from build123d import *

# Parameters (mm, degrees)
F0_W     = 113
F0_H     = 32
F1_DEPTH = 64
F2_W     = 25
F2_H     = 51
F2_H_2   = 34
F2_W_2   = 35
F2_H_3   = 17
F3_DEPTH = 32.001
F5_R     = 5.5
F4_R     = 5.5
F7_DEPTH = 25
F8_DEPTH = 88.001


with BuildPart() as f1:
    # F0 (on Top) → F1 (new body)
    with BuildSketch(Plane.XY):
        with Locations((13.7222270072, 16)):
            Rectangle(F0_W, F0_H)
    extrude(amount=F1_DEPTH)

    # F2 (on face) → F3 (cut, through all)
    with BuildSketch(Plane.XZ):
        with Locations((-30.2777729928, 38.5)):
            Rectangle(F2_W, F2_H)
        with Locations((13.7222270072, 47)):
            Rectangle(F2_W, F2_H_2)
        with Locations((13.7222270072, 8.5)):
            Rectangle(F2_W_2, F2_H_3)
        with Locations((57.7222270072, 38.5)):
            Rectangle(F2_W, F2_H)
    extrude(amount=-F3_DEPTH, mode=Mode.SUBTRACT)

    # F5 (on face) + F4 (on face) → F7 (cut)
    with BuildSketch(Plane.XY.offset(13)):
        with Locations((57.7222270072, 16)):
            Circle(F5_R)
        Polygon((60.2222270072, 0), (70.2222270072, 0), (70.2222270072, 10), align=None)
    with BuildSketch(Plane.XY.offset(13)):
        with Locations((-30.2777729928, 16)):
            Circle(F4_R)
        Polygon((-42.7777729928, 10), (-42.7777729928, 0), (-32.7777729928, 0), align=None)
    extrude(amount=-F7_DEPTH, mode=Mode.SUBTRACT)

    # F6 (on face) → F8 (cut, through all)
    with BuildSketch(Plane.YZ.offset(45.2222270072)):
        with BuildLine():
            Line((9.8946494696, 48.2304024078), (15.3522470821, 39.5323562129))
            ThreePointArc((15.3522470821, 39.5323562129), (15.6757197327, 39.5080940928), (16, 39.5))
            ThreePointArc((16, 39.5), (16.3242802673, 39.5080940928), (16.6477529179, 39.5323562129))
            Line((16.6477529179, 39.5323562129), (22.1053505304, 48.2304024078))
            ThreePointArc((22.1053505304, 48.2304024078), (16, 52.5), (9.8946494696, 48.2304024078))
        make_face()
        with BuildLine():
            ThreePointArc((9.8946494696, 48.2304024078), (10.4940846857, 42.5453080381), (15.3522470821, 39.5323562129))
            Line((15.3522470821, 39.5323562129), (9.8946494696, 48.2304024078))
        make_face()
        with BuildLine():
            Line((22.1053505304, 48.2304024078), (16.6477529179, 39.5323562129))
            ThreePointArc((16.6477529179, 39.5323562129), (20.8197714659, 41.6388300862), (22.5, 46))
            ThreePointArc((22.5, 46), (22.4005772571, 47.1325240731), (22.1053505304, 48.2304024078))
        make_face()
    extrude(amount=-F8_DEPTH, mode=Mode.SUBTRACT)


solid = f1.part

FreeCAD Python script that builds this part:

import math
import FreeCAD as App
import Part
import Sketcher
from FreeCAD import Vector
Q = App.Units.Quantity

doc = App.newDocument("Part")
body = doc.addObject("PartDesign::Body", "Body")

sketch1 = body.newObject("Sketcher::SketchObject", "Sketch")
sketch1.AttachmentSupport = (doc.getObject("XY_Plane"), [""])
sketch1.MapMode = "FlatFace"
sketch1.addGeometry([
    Part.LineSegment(Vector(-43, 32, 0), Vector(-43, 0, 0)),
    Part.LineSegment(Vector(-43, 0, 0), Vector(70, 0, 0)),
    Part.LineSegment(Vector(70, 0, 0), Vector(70, 32, 0)),
    Part.LineSegment(Vector(70, 32, 0), Vector(-43, 32, 0)),
], False)
sketch1.addConstraint([
    Sketcher.Constraint("Coincident", 0, 2, 1, 1),
    Sketcher.Constraint("Coincident", 1, 2, 2, 1),
    Sketcher.Constraint("Coincident", 2, 2, 3, 1),
    Sketcher.Constraint("Coincident", 3, 2, 0, 1),
    Sketcher.Constraint("Vertical", 0),
    Sketcher.Constraint("Horizontal", 1),
    Sketcher.Constraint("Vertical", 2),
    Sketcher.Constraint("Horizontal", 3),
    Sketcher.Constraint("PointOnObject", 0, 2, -1),
    Sketcher.Constraint("DistanceX", 1, 1, 1, 2, Q("113 mm")),
    Sketcher.Constraint("DistanceY", 0, 2, 0, 1, Q("32 mm")),
    Sketcher.Constraint("DistanceX", 0, 2, -1, 1, Q("42.777773 mm")),
])
pad1 = body.newObject("PartDesign::Pad", "Pad")
pad1.Profile = sketch1
pad1.Length = 64

sketch2 = body.newObject("Sketcher::SketchObject", "Sketch001")
sketch2.AttachmentSupport = (doc.getObject("XZ_Plane"), [""])
sketch2.MapMode = "FlatFace"
sketch2.addGeometry([
    Part.LineSegment(Vector(-43, 64, 0), Vector(-43, 13, 0)),
    Part.LineSegment(Vector(-43, 13, 0), Vector(-18, 13, 0)),
    Part.LineSegment(Vector(-18, 13, 0), Vector(-18, 64, 0)),
    Part.LineSegment(Vector(-18, 64, 0), Vector(-43, 64, 0)),
    Part.LineSegment(Vector(1, 64, 0), Vector(1, 30, 0)),
    Part.LineSegment(Vector(1, 30, 0), Vector(26, 30, 0)),
    Part.LineSegment(Vector(26, 30, 0), Vector(26, 64, 0)),
    Part.LineSegment(Vector(26, 64, 0), Vector(1, 64, 0)),
    Part.LineSegment(Vector(-4, 17, 0), Vector(-4, 0, 0)),
    Part.LineSegment(Vector(-4, 0, 0), Vector(31, 0, 0)),
    Part.LineSegment(Vector(31, 0, 0), Vector(31, 17, 0)),
    Part.LineSegment(Vector(31, 17, 0), Vector(-4, 17, 0)),
    Part.LineSegment(Vector(45, 64, 0), Vector(45, 13, 0)),
    Part.LineSegment(Vector(45, 13, 0), Vector(70, 13, 0)),
    Part.LineSegment(Vector(70, 13, 0), Vector(70, 64, 0)),
    Part.LineSegment(Vector(70, 64, 0), Vector(45, 64, 0)),
], False)
sketch2.addConstraint([
    Sketcher.Constraint("Coincident", 0, 2, 1, 1),
    Sketcher.Constraint("Coincident", 1, 2, 2, 1),
    Sketcher.Constraint("Coincident", 2, 2, 3, 1),
    Sketcher.Constraint("Coincident", 3, 2, 0, 1),
    Sketcher.Constraint("Coincident", 4, 2, 5, 1),
    Sketcher.Constraint("Coincident", 5, 2, 6, 1),
    Sketcher.Constraint("Coincident", 6, 2, 7, 1),
    Sketcher.Constraint("Coincident", 7, 2, 4, 1),
    Sketcher.Constraint("Coincident", 8, 2, 9, 1),
    Sketcher.Constraint("Coincident", 9, 2, 10, 1),
    Sketcher.Constraint("Coincident", 10, 2, 11, 1),
    Sketcher.Constraint("Coincident", 11, 2, 8, 1),
    Sketcher.Constraint("Coincident", 12, 2, 13, 1),
    Sketcher.Constraint("Coincident", 13, 2, 14, 1),
    Sketcher.Constraint("Coincident", 14, 2, 15, 1),
    Sketcher.Constraint("Coincident", 15, 2, 12, 1),
    Sketcher.Constraint("Vertical", 0),
    Sketcher.Constraint("Horizontal", 1),
    Sketcher.Constraint("Vertical", 2),
    Sketcher.Constraint("Horizontal", 3),
    Sketcher.Constraint("Vertical", 4),
    Sketcher.Constraint("Horizontal", 5),
    Sketcher.Constraint("Vertical", 6),
    Sketcher.Constraint("Horizontal", 7),
    Sketcher.Constraint("Vertical", 8),
    Sketcher.Constraint("Horizontal", 9),
    Sketcher.Constraint("Vertical", 10),
    Sketcher.Constraint("Horizontal", 11),
    Sketcher.Constraint("Vertical", 12),
    Sketcher.Constraint("Horizontal", 13),
    Sketcher.Constraint("Vertical", 14),
    Sketcher.Constraint("Horizontal", 15),
    Sketcher.Constraint("PointOnObject", 8, 2, -1),
    Sketcher.Constraint("Horizontal", 3, 2, 6, 2),
    Sketcher.Constraint("Horizontal", 1, 2, 12, 2),
    Sketcher.Constraint("Horizontal", 7, 2, 14, 2),
    Sketcher.Constraint("Equal", 3, 5),
    Sketcher.Constraint("Equal", 7, 13),
    Sketcher.Constraint("DistanceX", 1, 1, 1, 2, Q("25 mm")),
    Sketcher.Constraint("DistanceX", 9, 1, 9, 2, Q("35 mm")),
    Sketcher.Constraint("DistanceY", 0, 2, 0, 1, Q("51 mm")),
    Sketcher.Constraint("DistanceY", 4, 2, 4, 1, Q("34 mm")),
    Sketcher.Constraint("DistanceY", 8, 2, 8, 1, Q("17 mm")),
    Sketcher.Constraint("DistanceY", -1, 1, 0, 2, Q("13 mm")),
    Sketcher.Constraint("DistanceX", 1, 2, 4, 2, Q("19 mm")),
    Sketcher.Constraint("DistanceX", 1, 2, 8, 2, Q("14 mm")),
    Sketcher.Constraint("DistanceX", 10, 2, 12, 2, Q("14 mm")),
    Sketcher.Constraint("DistanceX", 0, 2, -1, 1, Q("42.777773 mm")),
])
pocket1 = body.newObject("PartDesign::Pocket", "Pocket")
pocket1.Profile = sketch2
pocket1.Type = "ThroughAll"

sketch3 = body.newObject("Sketcher::SketchObject", "Sketch002")
sketch3.AttachmentSupport = (doc.getObject("XY_Plane"), [""])
sketch3.MapMode = "FlatFace"
sketch3.AttachmentOffset = App.Placement(Vector(0, 0, 13), App.Rotation())
sketch3.addGeometry([
    Part.Circle(Vector(58, 16, 0), Vector(0, 0, 1), 6),
    Part.LineSegment(Vector(60, 0, 0), Vector(70, 0, 0)),
    Part.LineSegment(Vector(70, 0, 0), Vector(70, 10, 0)),
    Part.LineSegment(Vector(70, 10, 0), Vector(60, 0, 0)),
    Part.Circle(Vector(-30, 16, 0), Vector(0, 0, 1), 6),
    Part.LineSegment(Vector(-43, 10, 0), Vector(-43, 0, 0)),
    Part.LineSegment(Vector(-43, 0, 0), Vector(-33, 0, 0)),
    Part.LineSegment(Vector(-33, 0, 0), Vector(-43, 10, 0)),
], False)
sketch3.addConstraint([
    Sketcher.Constraint("Coincident", 1, 2, 2, 1),
    Sketcher.Constraint("Coincident", 2, 2, 3, 1),
    Sketcher.Constraint("Coincident", 3, 2, 1, 1),
    Sketcher.Constraint("Coincident", 5, 2, 6, 1),
    Sketcher.Constraint("Coincident", 6, 2, 7, 1),
    Sketcher.Constraint("Coincident", 7, 2, 5, 1),
    Sketcher.Constraint("Horizontal", 1),
    Sketcher.Constraint("Vertical", 2),
    Sketcher.Constraint("Vertical", 5),
    Sketcher.Constraint("Horizontal", 6),
    Sketcher.Constraint("Equal", 0, 4),
    Sketcher.Constraint("PointOnObject", 1, 2, -1),
    Sketcher.Constraint("PointOnObject", 5, 2, -1),
    Sketcher.Constraint("Perpendicular", 3, 7),
    Sketcher.Constraint("Horizontal", 0, 3, 4, 3),
    Sketcher.Constraint("Horizontal", 2, 2, 7, 2),
    Sketcher.Constraint("Equal", 1, 6),
    Sketcher.Constraint("Diameter", 0, Q("11 mm")),
    Sketcher.Constraint("DistanceX", 1, 1, 1, 2, Q("10 mm")),
    Sketcher.Constraint("DistanceY", -1, 1, 0, 3, Q("16 mm")),
    Sketcher.Constraint("DistanceX", 4, 3, 0, 3, Q("88 mm")),
    Sketcher.Constraint("DistanceX", 5, 2, 3, 2, Q("103 mm")),
    Sketcher.Constraint("DistanceX", 0, 3, 1, 2, Q("12.5 mm")),
    Sketcher.Constraint("DistanceX", -1, 1, 0, 3, Q("57.722227 mm")),
])
pocket2 = body.newObject("PartDesign::Pocket", "Pocket001")
pocket2.Profile = sketch3
pocket2.Length = 25

sketch4 = body.newObject("Sketcher::SketchObject", "Sketch003")
sketch4.AttachmentSupport = (doc.getObject("YZ_Plane"), [""])
sketch4.MapMode = "FlatFace"
sketch4.AttachmentOffset = App.Placement(Vector(0, 0, 45.222227), App.Rotation())
sketch4.addGeometry([
    Part.ArcOfCircle(Part.Circle(Vector(16, 46, 0), Vector(0, 0, 1), 6.5), math.radians(-95.72), math.radians(-90)),
    Part.ArcOfCircle(Part.Circle(Vector(16, 46, 0), Vector(0, 0, 1), 6.5), math.radians(-90), math.radians(-84.28)),
    Part.ArcOfCircle(Part.Circle(Vector(16, 46, 0), Vector(0, 0, 1), 6.5), math.radians(-84), math.radians(0)),
    Part.ArcOfCircle(Part.Circle(Vector(16, 46, 0), Vector(0, 0, 1), 6.5), math.radians(0), math.radians(20)),
    Part.ArcOfCircle(Part.Circle(Vector(16, 46, 0), Vector(0, 0, 1), 6.5), math.radians(20), math.radians(160)),
    Part.ArcOfCircle(Part.Circle(Vector(16, 46, 0), Vector(0, 0, 1), 6.5), math.radians(160), math.radians(264)),
], False)
sketch4.addConstraint([
    Sketcher.Constraint("Tangent", 0, 2, 1, 1),
    Sketcher.Constraint("Tangent", 1, 2, 2, 1),
    Sketcher.Constraint("Tangent", 2, 2, 3, 1),
    Sketcher.Constraint("Tangent", 3, 2, 4, 1),
    Sketcher.Constraint("Tangent", 4, 2, 5, 1),
    Sketcher.Constraint("Tangent", 5, 2, 0, 1),
    Sketcher.Constraint("Coincident", 2, 3, 0, 3),
    Sketcher.Constraint("Equal", 2, 3),
    Sketcher.Constraint("Horizontal", 5, 3, 2, 2),
    Sketcher.Constraint("Horizontal", 3, 2, 4, 2),
    Sketcher.Constraint("Horizontal", 1, 2, 5, 2),
    Sketcher.Constraint("Vertical", 5, 3, 0, 2),
    Sketcher.Constraint("Radius", 0, Q("6.5 mm")),
    Sketcher.Constraint("DistanceX", -1, 1, 0, 3, Q("16 mm")),
    Sketcher.Constraint("DistanceY", -1, 1, 0, 3, Q("46 mm")),
    Sketcher.Constraint("DistanceX", -1, 1, 3, 2, Q("22.105351 mm")),
    Sketcher.Constraint("DistanceX", -1, 1, 1, 2, Q("16.647753 mm")),
])
pocket3 = body.newObject("PartDesign::Pocket", "Pocket002")
pocket3.Profile = sketch4
pocket3.Type = "ThroughAll"

doc.recompute()
